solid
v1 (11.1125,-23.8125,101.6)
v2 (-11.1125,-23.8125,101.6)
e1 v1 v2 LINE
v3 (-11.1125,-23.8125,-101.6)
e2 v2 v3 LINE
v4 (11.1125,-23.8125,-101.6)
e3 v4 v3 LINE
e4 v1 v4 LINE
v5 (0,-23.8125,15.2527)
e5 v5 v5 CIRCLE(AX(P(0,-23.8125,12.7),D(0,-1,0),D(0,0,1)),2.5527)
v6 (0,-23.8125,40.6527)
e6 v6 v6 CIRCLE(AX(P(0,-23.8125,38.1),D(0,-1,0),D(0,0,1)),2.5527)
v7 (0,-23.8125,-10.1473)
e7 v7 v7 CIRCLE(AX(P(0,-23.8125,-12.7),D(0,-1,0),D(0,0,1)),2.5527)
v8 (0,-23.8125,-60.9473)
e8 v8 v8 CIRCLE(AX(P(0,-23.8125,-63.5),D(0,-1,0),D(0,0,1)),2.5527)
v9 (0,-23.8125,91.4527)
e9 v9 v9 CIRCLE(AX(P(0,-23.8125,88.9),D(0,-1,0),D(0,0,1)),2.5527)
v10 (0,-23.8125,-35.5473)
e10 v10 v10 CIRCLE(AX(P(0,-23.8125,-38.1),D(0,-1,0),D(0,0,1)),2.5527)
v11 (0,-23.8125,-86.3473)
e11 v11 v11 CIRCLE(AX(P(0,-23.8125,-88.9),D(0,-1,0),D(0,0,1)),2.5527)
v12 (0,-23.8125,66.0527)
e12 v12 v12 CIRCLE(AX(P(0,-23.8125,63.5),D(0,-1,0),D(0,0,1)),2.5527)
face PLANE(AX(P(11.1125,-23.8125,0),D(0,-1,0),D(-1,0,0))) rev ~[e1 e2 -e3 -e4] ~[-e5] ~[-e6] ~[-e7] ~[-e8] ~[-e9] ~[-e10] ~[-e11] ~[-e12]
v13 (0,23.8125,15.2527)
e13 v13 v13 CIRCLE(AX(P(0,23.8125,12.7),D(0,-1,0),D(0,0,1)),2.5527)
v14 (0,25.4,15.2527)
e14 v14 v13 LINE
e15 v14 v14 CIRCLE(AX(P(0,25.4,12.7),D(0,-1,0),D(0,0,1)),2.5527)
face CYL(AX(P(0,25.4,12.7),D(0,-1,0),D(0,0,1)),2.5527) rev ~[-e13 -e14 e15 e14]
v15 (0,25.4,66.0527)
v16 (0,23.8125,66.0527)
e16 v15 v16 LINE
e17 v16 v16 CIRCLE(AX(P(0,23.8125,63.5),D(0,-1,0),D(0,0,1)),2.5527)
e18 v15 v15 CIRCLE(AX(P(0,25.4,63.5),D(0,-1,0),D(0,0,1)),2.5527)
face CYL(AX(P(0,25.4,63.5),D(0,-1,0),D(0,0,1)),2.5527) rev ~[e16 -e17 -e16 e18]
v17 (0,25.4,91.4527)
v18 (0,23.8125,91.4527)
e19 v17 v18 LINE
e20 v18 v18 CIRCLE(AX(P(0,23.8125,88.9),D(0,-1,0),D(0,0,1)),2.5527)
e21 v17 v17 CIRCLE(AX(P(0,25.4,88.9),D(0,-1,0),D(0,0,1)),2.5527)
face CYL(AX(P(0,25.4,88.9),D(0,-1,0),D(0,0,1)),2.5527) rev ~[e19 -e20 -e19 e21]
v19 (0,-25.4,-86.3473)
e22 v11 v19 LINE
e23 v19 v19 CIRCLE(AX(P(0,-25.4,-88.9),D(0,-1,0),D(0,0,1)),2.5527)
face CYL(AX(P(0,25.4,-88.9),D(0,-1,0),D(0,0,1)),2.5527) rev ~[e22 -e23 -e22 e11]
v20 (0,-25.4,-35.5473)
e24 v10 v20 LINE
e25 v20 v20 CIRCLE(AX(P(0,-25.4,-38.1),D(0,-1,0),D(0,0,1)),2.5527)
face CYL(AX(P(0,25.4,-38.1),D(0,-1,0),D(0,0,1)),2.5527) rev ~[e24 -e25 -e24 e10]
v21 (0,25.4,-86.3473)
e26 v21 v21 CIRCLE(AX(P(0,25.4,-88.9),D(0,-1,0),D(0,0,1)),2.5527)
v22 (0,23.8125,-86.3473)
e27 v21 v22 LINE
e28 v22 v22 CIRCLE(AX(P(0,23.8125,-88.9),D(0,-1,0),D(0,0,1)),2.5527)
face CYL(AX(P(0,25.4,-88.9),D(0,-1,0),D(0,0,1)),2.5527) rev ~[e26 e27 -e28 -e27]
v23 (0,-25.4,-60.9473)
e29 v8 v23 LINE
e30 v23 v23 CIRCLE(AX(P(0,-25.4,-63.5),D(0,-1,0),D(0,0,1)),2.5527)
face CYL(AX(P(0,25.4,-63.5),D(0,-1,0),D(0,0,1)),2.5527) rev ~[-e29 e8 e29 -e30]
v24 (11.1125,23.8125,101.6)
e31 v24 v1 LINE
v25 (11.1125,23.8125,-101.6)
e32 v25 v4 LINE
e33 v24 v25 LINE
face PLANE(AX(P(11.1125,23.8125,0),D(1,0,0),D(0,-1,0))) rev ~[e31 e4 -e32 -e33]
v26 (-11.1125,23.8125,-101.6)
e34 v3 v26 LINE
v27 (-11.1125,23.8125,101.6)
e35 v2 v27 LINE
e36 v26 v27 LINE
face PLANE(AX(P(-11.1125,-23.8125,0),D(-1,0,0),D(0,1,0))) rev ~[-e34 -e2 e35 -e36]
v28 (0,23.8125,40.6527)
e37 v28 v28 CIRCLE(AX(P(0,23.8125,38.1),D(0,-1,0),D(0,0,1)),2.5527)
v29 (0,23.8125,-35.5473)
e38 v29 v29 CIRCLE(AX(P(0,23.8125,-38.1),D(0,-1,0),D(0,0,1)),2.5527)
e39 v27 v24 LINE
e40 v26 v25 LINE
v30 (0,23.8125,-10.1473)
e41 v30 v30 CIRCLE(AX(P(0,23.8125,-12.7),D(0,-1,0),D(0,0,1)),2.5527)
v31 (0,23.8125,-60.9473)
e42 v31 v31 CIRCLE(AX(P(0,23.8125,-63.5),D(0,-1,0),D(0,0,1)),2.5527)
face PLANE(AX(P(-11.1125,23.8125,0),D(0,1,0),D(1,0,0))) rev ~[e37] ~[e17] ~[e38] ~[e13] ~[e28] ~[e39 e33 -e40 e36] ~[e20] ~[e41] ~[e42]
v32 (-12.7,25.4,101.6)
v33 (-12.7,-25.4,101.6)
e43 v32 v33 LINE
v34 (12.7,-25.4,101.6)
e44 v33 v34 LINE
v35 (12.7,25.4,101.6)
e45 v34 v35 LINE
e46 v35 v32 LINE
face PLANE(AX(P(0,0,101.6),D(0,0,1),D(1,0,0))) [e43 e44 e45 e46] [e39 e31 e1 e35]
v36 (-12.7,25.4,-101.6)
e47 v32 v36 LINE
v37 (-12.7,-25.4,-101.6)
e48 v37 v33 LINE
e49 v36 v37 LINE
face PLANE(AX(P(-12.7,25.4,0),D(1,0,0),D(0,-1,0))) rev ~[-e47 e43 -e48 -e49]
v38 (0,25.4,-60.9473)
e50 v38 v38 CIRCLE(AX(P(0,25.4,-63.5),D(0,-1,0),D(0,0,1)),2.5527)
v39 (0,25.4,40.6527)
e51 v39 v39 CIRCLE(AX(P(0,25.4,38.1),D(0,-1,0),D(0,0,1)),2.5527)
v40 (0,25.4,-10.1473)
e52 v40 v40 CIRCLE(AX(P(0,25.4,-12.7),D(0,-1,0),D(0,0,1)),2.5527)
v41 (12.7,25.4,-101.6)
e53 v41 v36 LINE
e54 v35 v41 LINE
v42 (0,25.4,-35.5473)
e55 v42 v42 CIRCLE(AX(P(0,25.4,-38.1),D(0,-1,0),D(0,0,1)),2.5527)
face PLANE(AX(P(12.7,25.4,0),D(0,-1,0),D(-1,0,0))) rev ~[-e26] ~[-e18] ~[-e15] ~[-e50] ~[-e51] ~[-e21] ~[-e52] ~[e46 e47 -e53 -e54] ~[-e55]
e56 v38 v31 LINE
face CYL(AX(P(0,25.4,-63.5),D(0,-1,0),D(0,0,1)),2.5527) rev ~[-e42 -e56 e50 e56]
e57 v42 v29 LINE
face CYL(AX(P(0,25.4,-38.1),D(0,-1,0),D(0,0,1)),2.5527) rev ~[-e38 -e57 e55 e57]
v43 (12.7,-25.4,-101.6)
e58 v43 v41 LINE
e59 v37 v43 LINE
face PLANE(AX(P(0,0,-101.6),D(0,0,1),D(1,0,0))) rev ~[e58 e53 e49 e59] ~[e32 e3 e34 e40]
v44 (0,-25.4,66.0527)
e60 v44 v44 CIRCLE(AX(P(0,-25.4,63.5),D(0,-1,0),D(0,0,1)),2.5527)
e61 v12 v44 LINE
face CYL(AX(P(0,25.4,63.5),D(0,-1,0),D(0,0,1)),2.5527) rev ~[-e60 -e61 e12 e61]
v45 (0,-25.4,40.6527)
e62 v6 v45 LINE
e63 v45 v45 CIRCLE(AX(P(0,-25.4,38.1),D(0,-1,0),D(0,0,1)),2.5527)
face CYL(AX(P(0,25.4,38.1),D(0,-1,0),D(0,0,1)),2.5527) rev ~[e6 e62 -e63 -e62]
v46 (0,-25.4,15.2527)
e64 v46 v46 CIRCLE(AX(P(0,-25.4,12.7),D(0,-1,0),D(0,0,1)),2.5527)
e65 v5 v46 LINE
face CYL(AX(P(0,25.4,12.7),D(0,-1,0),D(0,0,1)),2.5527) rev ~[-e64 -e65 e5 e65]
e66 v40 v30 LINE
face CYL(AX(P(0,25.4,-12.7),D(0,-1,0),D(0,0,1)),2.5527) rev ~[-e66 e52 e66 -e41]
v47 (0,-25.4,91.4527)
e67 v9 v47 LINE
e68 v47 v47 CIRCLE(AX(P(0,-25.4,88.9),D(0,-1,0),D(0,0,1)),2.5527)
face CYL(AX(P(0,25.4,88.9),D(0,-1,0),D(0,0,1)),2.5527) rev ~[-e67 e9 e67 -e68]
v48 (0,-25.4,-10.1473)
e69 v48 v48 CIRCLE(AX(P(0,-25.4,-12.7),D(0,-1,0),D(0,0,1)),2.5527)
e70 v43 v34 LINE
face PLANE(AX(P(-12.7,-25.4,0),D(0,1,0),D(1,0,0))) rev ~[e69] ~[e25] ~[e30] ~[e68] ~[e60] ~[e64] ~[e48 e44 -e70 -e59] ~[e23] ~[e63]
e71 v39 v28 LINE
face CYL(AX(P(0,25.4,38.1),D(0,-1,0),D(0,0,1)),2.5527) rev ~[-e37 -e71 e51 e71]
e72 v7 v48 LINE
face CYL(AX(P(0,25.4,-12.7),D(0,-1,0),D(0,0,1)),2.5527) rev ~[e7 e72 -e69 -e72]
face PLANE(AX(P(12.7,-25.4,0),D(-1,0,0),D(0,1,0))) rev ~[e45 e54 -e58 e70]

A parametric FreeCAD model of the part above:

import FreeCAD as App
import Part
import Sketcher

V = App.Vector
Q = App.Units.Quantity


def add_polygon(sketch, points):
    """Adds a closed chain of lines whose ends are joined by coincident constraints."""
    first, n = sketch.GeometryCount, len(points)
    for a, b in zip(points, points[1:] + points[:1]):
        sketch.addGeometry(Part.LineSegment(App.Vector(*a, 0), App.Vector(*b, 0)), False)
    for i in range(n):
        sketch.addConstraint(Sketcher.Constraint("Coincident", first + i, 2, first + (i + 1) % n, 1))

doc = App.newDocument("Part")
params = doc.addObject("Spreadsheet::Sheet", "Params")
for row, (alias, value) in enumerate([
    ("sketch1_width", "1 in"),
    ("sketch1_height", "2 in"),
    ("pad1_length", "8 in"),
    ("sketch2_diameter", "0.201 in"),
    ("hole_diameter", "0.201 in"),
    ("linearpattern_pitch", "1 in"),
], start=1):
    params.set(f"A{row}", alias)
    params.set(f"B{row}", "=" + value)
    params.setAlias(f"B{row}", alias)

body = doc.addObject("PartDesign::Body", "Body")

# Sketch on XY plane
sketch1 = doc.addObject("Sketcher::SketchObject", "Sketch")
body.addObject(sketch1)
sketch1.AttachmentSupport = (doc.XY_Plane, [""])
sketch1.MapMode = "FlatFace"
add_polygon(sketch1, [(-13, 25), (-13, -25), (13, -25), (13, 25)])  # lines 0-3
add_polygon(sketch1, [(-11, -24), (-11, 24), (11, 24), (11, -24)])  # lines 4-7
sketch1.addConstraint(Sketcher.Constraint("Vertical", 0))
sketch1.addConstraint(Sketcher.Constraint("Horizontal", 1))
sketch1.addConstraint(Sketcher.Constraint("Vertical", 2))
sketch1.addConstraint(Sketcher.Constraint("Horizontal", 3))
sketch1.addConstraint(Sketcher.Constraint("Vertical", 4))
sketch1.addConstraint(Sketcher.Constraint("Horizontal", 5))
sketch1.addConstraint(Sketcher.Constraint("Vertical", 6))
sketch1.addConstraint(Sketcher.Constraint("Horizontal", 7))
sketch1.addConstraint(Sketcher.Constraint("Symmetric", 0, 2, 2, 2, -1, 1))
sketch1.addConstraint(Sketcher.Constraint("Symmetric", 4, 2, 6, 2, -1, 1))
sketch1.addConstraint(Sketcher.Constraint("DistanceX", 1, 1, 1, 2, Q("1 in")))
sketch1.addConstraint(Sketcher.Constraint("DistanceY", 0, 2, 0, 1, Q("2 in")))
sketch1.addConstraint(Sketcher.Constraint("DistanceX", 3, 2, 4, 2, Q("0.0625 in")))
sketch1.addConstraint(Sketcher.Constraint("DistanceY", 4, 2, 3, 2, Q("0.0625 in")))
sketch1.setExpression("Constraints[18]", "Params.sketch1_width")
sketch1.setExpression("Constraints[19]", "Params.sketch1_height")
pad1 = doc.addObject("PartDesign::Pad", "Pad")
body.addObject(pad1)
pad1.Profile = sketch1
pad1.setExpression("Length", "Params.pad1_length")
pad1.Midplane = True

# Sketch on XZ plane
sketch2 = doc.addObject("Sketcher::SketchObject", "Sketch001")
body.addObject(sketch2)
sketch2.AttachmentSupport = (doc.XZ_Plane, [""])
sketch2.MapMode = "FlatFace"
sketch2.AttachmentOffset = App.Placement(V(0, 0, -1 * 25.4), App.Rotation())
sketch2.addGeometry(Part.Circle(V(0, -88.9, 0), V(0, 0, 1), 2.6), False)
sketch2.addConstraint(Sketcher.Constraint("PointOnObject", 0, 3, -2))
sketch2.addConstraint(Sketcher.Constraint("Diameter", 0, Q("0.201 in")))
sketch2.addConstraint(Sketcher.Constraint("DistanceY", 0, 3, -1, 1, Q("3.5 in")))
sketch2.setExpression("Constraints[1]", "Params.sketch2_diameter")
doc.recompute()
hole = doc.addObject("PartDesign::Hole", "Hole")
body.addObject(hole)
hole.Profile = sketch2
hole.ThreadType = "None"
hole.setExpression("Diameter", "Params.hole_diameter")
hole.DepthType = "ThroughAll"
hole.Reversed = True
doc.recompute()

linearpattern = doc.addObject("PartDesign::LinearPattern", "LinearPattern")
body.addObject(linearpattern)
linearpattern.Originals = [hole]
linearpattern.Direction = (doc.Z_Axis, [""])
linearpattern.Mode = "offset"
linearpattern.setExpression("Offset", "Params.linearpattern_pitch")
linearpattern.Occurrences = 8
body.Tip = linearpattern

doc.recompute()
